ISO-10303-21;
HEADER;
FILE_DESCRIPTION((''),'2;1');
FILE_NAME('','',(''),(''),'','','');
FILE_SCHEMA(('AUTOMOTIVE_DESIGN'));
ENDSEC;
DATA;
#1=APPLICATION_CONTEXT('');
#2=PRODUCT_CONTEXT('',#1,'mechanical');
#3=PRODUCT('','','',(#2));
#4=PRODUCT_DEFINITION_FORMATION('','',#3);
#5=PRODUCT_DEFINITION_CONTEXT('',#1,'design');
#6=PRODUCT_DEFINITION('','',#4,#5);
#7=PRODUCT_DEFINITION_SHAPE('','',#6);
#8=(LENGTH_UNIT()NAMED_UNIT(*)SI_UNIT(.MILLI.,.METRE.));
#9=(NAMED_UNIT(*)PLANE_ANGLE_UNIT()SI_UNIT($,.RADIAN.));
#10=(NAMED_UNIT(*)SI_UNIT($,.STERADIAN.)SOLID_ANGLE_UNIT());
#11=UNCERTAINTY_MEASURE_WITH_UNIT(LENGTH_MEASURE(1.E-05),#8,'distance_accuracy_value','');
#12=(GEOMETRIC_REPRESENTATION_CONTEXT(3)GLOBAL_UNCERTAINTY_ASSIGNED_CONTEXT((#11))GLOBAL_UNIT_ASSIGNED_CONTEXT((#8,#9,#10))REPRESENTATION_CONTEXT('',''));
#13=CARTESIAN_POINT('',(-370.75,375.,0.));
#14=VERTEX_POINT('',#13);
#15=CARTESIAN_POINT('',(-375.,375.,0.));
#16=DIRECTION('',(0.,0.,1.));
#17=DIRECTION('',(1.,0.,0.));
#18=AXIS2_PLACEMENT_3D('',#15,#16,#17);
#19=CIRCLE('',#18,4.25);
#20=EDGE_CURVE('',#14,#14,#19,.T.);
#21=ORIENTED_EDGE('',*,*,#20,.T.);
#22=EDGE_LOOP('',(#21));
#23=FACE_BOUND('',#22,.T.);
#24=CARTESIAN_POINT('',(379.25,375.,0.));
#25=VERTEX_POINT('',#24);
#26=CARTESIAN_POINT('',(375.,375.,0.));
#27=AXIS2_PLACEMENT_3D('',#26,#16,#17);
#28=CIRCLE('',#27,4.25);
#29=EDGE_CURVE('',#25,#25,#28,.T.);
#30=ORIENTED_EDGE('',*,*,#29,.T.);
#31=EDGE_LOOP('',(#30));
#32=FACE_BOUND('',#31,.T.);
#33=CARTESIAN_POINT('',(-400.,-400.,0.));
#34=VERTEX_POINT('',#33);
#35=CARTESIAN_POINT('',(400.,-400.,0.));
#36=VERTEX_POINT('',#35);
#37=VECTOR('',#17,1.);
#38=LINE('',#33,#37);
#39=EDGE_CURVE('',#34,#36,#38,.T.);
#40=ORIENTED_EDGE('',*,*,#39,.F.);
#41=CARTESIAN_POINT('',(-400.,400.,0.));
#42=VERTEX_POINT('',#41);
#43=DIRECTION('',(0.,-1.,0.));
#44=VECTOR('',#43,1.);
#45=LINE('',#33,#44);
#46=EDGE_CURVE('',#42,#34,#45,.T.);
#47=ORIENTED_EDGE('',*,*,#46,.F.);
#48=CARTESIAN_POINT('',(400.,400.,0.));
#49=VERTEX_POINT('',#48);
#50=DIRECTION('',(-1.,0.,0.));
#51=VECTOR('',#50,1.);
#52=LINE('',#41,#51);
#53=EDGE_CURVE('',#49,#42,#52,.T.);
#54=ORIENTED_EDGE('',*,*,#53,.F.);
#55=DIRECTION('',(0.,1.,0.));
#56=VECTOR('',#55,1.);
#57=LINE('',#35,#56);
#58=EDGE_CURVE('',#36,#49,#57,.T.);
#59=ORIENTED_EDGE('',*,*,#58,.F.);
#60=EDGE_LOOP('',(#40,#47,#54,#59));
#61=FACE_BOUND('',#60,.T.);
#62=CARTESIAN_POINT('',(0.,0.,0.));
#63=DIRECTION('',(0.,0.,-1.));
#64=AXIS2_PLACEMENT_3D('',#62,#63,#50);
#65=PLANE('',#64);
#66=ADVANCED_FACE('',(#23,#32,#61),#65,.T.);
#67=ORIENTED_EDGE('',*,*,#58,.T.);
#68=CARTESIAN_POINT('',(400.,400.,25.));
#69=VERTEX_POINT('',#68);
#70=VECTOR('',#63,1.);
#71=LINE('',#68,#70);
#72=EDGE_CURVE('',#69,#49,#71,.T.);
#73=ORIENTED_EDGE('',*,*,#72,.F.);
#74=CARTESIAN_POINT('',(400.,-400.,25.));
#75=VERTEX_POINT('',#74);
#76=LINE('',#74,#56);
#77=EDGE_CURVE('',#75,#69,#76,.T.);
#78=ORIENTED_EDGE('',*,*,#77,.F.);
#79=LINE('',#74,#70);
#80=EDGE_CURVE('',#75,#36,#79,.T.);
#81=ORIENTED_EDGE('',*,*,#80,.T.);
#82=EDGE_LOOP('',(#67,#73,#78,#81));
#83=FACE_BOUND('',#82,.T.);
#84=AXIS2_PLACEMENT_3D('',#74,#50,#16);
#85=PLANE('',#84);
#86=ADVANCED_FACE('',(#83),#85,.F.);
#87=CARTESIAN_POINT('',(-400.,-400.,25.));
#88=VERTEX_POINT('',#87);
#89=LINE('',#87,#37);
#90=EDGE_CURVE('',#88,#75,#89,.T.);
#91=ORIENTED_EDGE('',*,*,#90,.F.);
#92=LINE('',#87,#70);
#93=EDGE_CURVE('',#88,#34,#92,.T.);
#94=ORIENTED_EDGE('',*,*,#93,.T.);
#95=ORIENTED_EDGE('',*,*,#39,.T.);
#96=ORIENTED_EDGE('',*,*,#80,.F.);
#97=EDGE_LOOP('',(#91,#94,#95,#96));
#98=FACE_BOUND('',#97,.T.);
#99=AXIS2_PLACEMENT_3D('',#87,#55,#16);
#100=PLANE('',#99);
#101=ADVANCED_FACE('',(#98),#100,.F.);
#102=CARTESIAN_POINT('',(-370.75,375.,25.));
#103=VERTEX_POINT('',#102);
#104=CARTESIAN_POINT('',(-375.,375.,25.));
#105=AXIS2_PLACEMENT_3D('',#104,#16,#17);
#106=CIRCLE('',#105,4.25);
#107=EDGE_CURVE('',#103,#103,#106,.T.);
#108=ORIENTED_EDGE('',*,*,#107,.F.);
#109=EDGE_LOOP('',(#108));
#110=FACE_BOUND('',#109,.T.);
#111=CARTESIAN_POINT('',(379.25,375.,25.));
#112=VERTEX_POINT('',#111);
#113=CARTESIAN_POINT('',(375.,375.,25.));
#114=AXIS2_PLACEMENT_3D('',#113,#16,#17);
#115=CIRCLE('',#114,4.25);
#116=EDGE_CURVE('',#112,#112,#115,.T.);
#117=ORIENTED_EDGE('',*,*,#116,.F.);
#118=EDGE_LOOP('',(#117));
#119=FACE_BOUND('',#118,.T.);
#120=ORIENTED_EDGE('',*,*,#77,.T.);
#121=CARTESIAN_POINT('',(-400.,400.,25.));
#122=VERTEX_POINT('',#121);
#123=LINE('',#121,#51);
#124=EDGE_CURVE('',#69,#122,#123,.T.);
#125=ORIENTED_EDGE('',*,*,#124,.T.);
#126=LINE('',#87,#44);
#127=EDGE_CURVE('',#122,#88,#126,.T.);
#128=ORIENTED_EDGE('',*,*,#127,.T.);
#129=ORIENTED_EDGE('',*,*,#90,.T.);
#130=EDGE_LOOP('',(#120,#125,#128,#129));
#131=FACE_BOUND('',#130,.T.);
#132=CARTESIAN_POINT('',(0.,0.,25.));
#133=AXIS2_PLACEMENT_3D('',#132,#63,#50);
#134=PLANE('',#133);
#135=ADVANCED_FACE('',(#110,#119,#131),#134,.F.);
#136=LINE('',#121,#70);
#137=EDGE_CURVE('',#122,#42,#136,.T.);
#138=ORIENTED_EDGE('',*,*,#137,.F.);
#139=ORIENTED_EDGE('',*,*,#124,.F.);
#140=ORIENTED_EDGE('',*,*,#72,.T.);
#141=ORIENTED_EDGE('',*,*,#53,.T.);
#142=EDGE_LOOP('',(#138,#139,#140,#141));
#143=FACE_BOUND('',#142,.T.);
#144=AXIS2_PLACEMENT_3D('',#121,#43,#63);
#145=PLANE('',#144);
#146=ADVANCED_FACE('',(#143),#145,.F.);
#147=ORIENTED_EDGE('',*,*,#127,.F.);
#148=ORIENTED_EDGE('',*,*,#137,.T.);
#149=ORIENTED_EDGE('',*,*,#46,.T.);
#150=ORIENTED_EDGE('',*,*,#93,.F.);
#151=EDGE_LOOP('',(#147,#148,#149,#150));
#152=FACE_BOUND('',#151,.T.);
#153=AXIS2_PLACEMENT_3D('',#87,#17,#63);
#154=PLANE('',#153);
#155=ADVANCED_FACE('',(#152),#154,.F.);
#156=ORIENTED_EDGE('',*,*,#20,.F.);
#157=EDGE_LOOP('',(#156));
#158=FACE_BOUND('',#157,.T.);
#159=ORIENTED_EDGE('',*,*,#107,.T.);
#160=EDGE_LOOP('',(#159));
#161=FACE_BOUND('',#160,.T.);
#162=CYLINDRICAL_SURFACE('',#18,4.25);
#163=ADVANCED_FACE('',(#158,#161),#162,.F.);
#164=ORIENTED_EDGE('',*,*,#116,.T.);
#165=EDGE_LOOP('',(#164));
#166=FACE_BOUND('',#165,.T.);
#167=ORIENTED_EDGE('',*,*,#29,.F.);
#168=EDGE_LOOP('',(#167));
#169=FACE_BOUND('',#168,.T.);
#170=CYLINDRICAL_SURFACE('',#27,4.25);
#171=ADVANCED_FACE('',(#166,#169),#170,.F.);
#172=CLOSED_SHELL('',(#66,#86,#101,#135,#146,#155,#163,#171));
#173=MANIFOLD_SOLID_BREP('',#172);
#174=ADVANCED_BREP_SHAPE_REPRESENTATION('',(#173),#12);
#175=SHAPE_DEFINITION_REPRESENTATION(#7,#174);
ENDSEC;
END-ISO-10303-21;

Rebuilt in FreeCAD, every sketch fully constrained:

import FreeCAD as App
import Part
import Sketcher

V = App.Vector
Q = App.Units.Quantity


def add_polygon(sketch, points):
    """Adds a closed chain of lines whose ends are joined by coincident constraints."""
    first, n = sketch.GeometryCount, len(points)
    for a, b in zip(points, points[1:] + points[:1]):
        sketch.addGeometry(Part.LineSegment(App.Vector(*a, 0), App.Vector(*b, 0)), False)
    for i in range(n):
        sketch.addConstraint(Sketcher.Constraint("Coincident", first + i, 2, first + (i + 1) % n, 1))

doc = App.newDocument("Part")
body = doc.addObject("PartDesign::Body", "Body")

# Sketch on XY plane
sketch1 = body.newObject("Sketcher::SketchObject", "Sketch")
sketch1.AttachmentSupport = (doc.getObject("XY_Plane"), [""])
sketch1.MapMode = "FlatFace"
add_polygon(sketch1, [(-400, 400), (-400, -400), (400, -400), (400, 400)])  # lines 0-3
sketch1.addConstraint([
    Sketcher.Constraint("Vertical", 0),
    Sketcher.Constraint("Horizontal", 1),
    Sketcher.Constraint("Vertical", 2),
    Sketcher.Constraint("Horizontal", 3),
    Sketcher.Constraint("Symmetric", 0, 2, 2, 2, -1, 1),
    Sketcher.Constraint("Equal", 3, 0),
    Sketcher.Constraint("DistanceX", 1, 1, 1, 2, Q("800 mm")),
])
pad1 = body.newObject("PartDesign::Pad", "Pad")
pad1.Profile = sketch1
pad1.Length = 25

# Sketch on XY plane
sketch2 = body.newObject("Sketcher::SketchObject", "Sketch001")
sketch2.AttachmentSupport = (doc.getObject("XY_Plane"), [""])
sketch2.MapMode = "FlatFace"
sketch2.AttachmentOffset = App.Placement(V(0, 0, 25), App.Rotation())
sketch2.addGeometry([
    Part.Circle(V(375, 375, 0), V(0, 0, 1), 4.2),
    Part.Circle(V(-375, 375, 0), V(0, 0, 1), 4.2),
], False)
sketch2.addConstraint([
    Sketcher.Constraint("Equal", 0, 1),
    Sketcher.Constraint("Symmetric", 0, 3, 1, 3, -2),
    Sketcher.Constraint("Diameter", 0, Q("8.5 mm")),
    Sketcher.Constraint("DistanceX", -1, 1, 0, 3, Q("375 mm")),
    Sketcher.Constraint("DistanceY", -1, 1, 0, 3, Q("375 mm")),
])
pocket1 = body.newObject("PartDesign::Pocket", "Pocket")
pocket1.Profile = sketch2
pocket1.Length = 25

doc.recompute()
